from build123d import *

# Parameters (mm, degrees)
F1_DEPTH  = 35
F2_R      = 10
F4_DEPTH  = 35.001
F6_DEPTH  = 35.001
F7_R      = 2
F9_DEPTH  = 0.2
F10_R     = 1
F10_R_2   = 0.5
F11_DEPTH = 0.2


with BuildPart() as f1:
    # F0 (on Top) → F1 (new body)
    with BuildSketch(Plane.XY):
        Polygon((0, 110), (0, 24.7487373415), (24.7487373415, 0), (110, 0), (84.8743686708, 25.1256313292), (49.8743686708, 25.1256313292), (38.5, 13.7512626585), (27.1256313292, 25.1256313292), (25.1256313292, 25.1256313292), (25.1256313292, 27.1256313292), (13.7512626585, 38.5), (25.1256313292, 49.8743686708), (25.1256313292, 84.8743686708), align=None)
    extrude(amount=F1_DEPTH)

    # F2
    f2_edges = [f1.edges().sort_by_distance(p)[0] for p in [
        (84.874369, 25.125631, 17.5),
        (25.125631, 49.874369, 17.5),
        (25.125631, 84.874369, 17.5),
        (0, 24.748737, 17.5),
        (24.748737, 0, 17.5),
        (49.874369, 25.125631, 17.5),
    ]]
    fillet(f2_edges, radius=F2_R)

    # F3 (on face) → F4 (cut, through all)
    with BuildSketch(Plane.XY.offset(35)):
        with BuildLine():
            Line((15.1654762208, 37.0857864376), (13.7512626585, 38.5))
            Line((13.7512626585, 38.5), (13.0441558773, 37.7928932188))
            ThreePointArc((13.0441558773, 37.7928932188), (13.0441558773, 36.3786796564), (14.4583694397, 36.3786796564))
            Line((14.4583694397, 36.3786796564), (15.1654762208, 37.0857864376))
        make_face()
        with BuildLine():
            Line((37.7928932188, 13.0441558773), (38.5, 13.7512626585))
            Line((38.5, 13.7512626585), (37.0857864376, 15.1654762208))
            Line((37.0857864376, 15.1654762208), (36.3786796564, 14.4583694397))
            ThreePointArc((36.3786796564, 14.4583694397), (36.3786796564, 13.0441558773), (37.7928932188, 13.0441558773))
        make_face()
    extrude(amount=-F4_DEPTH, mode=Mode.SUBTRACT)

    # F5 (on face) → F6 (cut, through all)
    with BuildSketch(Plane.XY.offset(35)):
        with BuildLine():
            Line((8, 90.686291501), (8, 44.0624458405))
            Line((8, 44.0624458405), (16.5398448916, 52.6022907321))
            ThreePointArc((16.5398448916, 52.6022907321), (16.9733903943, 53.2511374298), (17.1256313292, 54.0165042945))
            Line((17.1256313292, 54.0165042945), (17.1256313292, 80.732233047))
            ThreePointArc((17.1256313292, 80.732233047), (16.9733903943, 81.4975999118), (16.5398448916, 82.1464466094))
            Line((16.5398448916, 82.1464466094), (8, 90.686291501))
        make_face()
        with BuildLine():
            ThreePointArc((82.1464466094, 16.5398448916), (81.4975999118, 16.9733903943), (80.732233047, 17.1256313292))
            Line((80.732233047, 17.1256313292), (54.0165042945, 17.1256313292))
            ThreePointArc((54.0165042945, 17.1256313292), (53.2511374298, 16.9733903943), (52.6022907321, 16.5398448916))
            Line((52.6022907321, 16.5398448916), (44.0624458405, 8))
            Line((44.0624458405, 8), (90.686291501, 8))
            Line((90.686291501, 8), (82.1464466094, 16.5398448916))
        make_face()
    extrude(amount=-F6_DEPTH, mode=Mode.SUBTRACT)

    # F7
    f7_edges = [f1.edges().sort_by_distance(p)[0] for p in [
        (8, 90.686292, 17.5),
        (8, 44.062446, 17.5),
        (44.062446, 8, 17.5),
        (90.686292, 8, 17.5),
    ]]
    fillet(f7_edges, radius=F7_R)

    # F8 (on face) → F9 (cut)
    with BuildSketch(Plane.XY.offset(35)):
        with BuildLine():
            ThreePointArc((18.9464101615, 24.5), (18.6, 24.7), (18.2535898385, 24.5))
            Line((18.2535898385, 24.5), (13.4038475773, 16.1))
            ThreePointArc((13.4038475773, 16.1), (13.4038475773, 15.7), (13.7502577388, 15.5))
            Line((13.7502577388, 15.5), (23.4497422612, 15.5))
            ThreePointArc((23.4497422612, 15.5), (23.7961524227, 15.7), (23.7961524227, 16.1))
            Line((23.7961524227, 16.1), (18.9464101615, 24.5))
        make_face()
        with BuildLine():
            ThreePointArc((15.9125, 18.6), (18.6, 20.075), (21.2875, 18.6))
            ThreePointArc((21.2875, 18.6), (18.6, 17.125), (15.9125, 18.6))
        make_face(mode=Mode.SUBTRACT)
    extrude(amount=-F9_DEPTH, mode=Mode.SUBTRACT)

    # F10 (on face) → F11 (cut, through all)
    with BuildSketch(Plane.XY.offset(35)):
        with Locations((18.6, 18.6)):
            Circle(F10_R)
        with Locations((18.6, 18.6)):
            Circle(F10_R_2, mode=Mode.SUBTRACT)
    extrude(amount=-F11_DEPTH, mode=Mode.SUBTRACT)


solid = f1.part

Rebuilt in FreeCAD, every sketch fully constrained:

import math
import FreeCAD as App
import Part
import Sketcher

V = App.Vector
Q = App.Units.Quantity


def edges_at(feature, points):
    """Names of the edges that pass closest to the given points."""
    edges = feature.Shape.Edges
    near = lambda p: min(range(len(edges)), key=lambda i: edges[i].distToShape(Part.Vertex(*p))[0])
    return sorted({f"Edge{near(p) + 1}" for p in points})


def add_polygon(sketch, points):
    """Adds a closed chain of lines whose ends are joined by coincident constraints."""
    first, n = sketch.GeometryCount, len(points)
    for a, b in zip(points, points[1:] + points[:1]):
        sketch.addGeometry(Part.LineSegment(App.Vector(*a, 0), App.Vector(*b, 0)), False)
    for i in range(n):
        sketch.addConstraint(Sketcher.Constraint("Coincident", first + i, 2, first + (i + 1) % n, 1))

doc = App.newDocument("Part")
body = doc.addObject("PartDesign::Body", "Body")

# Sketch on XY plane
sketch1 = doc.addObject("Sketcher::SketchObject", "Sketch")
body.addObject(sketch1)
sketch1.AttachmentSupport = (doc.XY_Plane, [""])
sketch1.MapMode = "FlatFace"
add_polygon(sketch1, [(0, 110), (0, 24.7), (24.7, 0), (110, 0), (84.9, 25.1), (49.9, 25.1), (38.5, 13.8), (27.1, 25.1), (25.1, 25.1), (25.1, 27.1), (13.8, 38.5), (25.1, 49.9), (25.1, 84.9)])  # lines 0-12
sketch1.addConstraint([
    Sketcher.Constraint("Vertical", 0),
    Sketcher.Constraint("Horizontal", 2),
    Sketcher.Constraint("Horizontal", 4),
    Sketcher.Constraint("Horizontal", 7),
    Sketcher.Constraint("Vertical", 8),
    Sketcher.Constraint("Vertical", 11),
    Sketcher.Constraint("PointOnObject", 0, 2, -2),
    Sketcher.Constraint("PointOnObject", 1, 2, -1),
    Sketcher.Constraint("Parallel", 1, 3),
    Sketcher.Constraint("Perpendicular", 3, 5),
    Sketcher.Constraint("Perpendicular", 5, 6),
    Sketcher.Constraint("Parallel", 6, 9),
    Sketcher.Constraint("Perpendicular", 9, 10),
    Sketcher.Constraint("Perpendicular", 10, 12),
    Sketcher.Constraint("Horizontal", 4, 2, 6, 2),
    Sketcher.Constraint("Vertical", 8, 2, 10, 2),
    Sketcher.Constraint("Equal", 2, 0),
    Sketcher.Constraint("Equal", 7, 8),
    Sketcher.Constraint("Equal", 4, 11),
    Sketcher.Constraint("Equal", 5, 6),
    Sketcher.Constraint("Equal", 3, 12),
    Sketcher.Constraint("DistanceX", 4, 2, 4, 1, Q("35 mm")),
    Sketcher.Constraint("DistanceX", 7, 2, 7, 1, Q("2 mm")),
    Sketcher.Constraint("Distance", 1, Q("35 mm")),
    Sketcher.Constraint("DistanceX", -1, 1, 2, 2, Q("110 mm")),
    Sketcher.Constraint("Distance", 3, Q("35.533009 mm")),
])
pad1 = doc.addObject("PartDesign::Pad", "Pad")
body.addObject(pad1)
pad1.Profile = sketch1
pad1.Length = 35
doc.recompute()

fillet = doc.addObject("PartDesign::Fillet", "Fillet")
body.addObject(fillet)
fillet.Base = (pad1, edges_at(pad1, [
    (84.874, 25.126, 17.5),
    (25.126, 49.874, 17.5),
    (25.126, 84.874, 17.5),
    (0, 24.749, 17.5),
    (24.749, 0, 17.5),
    (49.874, 25.126, 17.5),
]))
fillet.Radius = 10

# Sketch on XY plane
sketch2 = doc.addObject("Sketcher::SketchObject", "Sketch001")
body.addObject(sketch2)
sketch2.AttachmentSupport = (doc.XY_Plane, [""])
sketch2.MapMode = "FlatFace"
sketch2.AttachmentOffset = App.Placement(V(0, 0, 35), App.Rotation())
sketch2.addGeometry([
    Part.LineSegment(V(15.2, 37.1, 0), V(13.8, 38.5, 0)),  # 0
    Part.LineSegment(V(13.8, 38.5, 0), V(13, 37.8, 0)),  # 1
    Part.ArcOfCircle(Part.Circle(V(13.8, 37.1, 0), V(0, 0, 1), 1), math.radians(135), math.radians(315)),  # 2
    Part.LineSegment(V(14.5, 36.4, 0), V(15.2, 37.1, 0)),  # 3
    Part.LineSegment(V(37.8, 13, 0), V(38.5, 13.8, 0)),  # 4
    Part.LineSegment(V(38.5, 13.8, 0), V(37.1, 15.2, 0)),  # 5
    Part.LineSegment(V(37.1, 15.2, 0), V(36.4, 14.5, 0)),  # 6
    Part.ArcOfCircle(Part.Circle(V(37.1, 13.8, 0), V(0, 0, 1), 1), math.radians(135), math.radians(315)),  # 7
], False)
sketch2.addConstraint([
    Sketcher.Constraint("Coincident", 0, 2, 1, 1),
    Sketcher.Constraint("Tangent", 1, 2, 2, 1),
    Sketcher.Constraint("Tangent", 2, 2, 3, 1),
    Sketcher.Constraint("Coincident", 3, 2, 0, 1),
    Sketcher.Constraint("Coincident", 4, 2, 5, 1),
    Sketcher.Constraint("Coincident", 5, 2, 6, 1),
    Sketcher.Constraint("Tangent", 6, 2, 7, 1),
    Sketcher.Constraint("Tangent", 7, 2, 4, 1),
    Sketcher.Constraint("Equal", 2, 7),
    Sketcher.Constraint("Perpendicular", 0, 1),
    Sketcher.Constraint("Parallel", 1, 3),
    Sketcher.Constraint("Parallel", 3, 4),
    Sketcher.Constraint("Perpendicular", 4, 5),
    Sketcher.Constraint("Perpendicular", 5, 6),
    Sketcher.Constraint("Horizontal", 2, 3, 3, 2),
    Sketcher.Constraint("Horizontal", 7, 3, 4, 2),
    Sketcher.Constraint("Vertical", 2, 3, 0, 2),
    Sketcher.Constraint("Radius", 2, Q("1 mm")),
    Sketcher.Constraint("DistanceY", -1, 1, 0, 2, Q("38.5 mm")),
    Sketcher.Constraint("DistanceX", -1, 1, 4, 2, Q("38.5 mm")),
    Sketcher.Constraint("DistanceX", -1, 1, 2, 2, Q("14.458369 mm")),
    Sketcher.Constraint("DistanceY", -1, 1, 6, 2, Q("14.458369 mm")),
])
pocket1 = doc.addObject("PartDesign::Pocket", "Pocket")
body.addObject(pocket1)
pocket1.Profile = sketch2
pocket1.Type = "ThroughAll"

# Sketch on XY plane
sketch3 = doc.addObject("Sketcher::SketchObject", "Sketch002")
body.addObject(sketch3)
sketch3.AttachmentSupport = (doc.XY_Plane, [""])
sketch3.MapMode = "FlatFace"
sketch3.AttachmentOffset = App.Placement(V(0, 0, 35), App.Rotation())
sketch3.addGeometry([
    Part.LineSegment(V(8, 90.7, 0), V(8, 44.1, 0)),  # 0
    Part.LineSegment(V(8, 44.1, 0), V(16.5, 52.6, 0)),  # 1
    Part.ArcOfCircle(Part.Circle(V(15.1, 54, 0), V(0, 0, 1), 2), math.radians(-45), math.radians(0)),  # 2
    Part.LineSegment(V(17.1, 54, 0), V(17.1, 80.7, 0)),  # 3
    Part.ArcOfCircle(Part.Circle(V(15.1, 80.7, 0), V(0, 0, 1), 2), math.radians(0), math.radians(45)),  # 4
    Part.LineSegment(V(16.5, 82.1, 0), V(8, 90.7, 0)),  # 5
    Part.ArcOfCircle(Part.Circle(V(80.7, 15.1, 0), V(0, 0, 1), 2), math.radians(45), math.radians(90)),  # 6
    Part.LineSegment(V(80.7, 17.1, 0), V(54, 17.1, 0)),  # 7
    Part.ArcOfCircle(Part.Circle(V(54, 15.1, 0), V(0, 0, 1), 2), math.radians(90), math.radians(135)),  # 8
    Part.LineSegment(V(52.6, 16.5, 0), V(44.1, 8, 0)),  # 9
    Part.LineSegment(V(44.1, 8, 0), V(90.7, 8, 0)),  # 10
    Part.LineSegment(V(90.7, 8, 0), V(82.1, 16.5, 0)),  # 11
], False)
sketch3.addConstraint([
    Sketcher.Constraint("Coincident", 0, 2, 1, 1),
    Sketcher.Constraint("Tangent", 1, 2, 2, 1),
    Sketcher.Constraint("Tangent", 2, 2, 3, 1),
    Sketcher.Constraint("Tangent", 3, 2, 4, 1),
    Sketcher.Constraint("Tangent", 4, 2, 5, 1),
    Sketcher.Constraint("Coincident", 5, 2, 0, 1),
    Sketcher.Constraint("Tangent", 6, 2, 7, 1),
    Sketcher.Constraint("Tangent", 7, 2, 8, 1),
    Sketcher.Constraint("Tangent", 8, 2, 9, 1),
    Sketcher.Constraint("Coincident", 9, 2, 10, 1),
    Sketcher.Constraint("Coincident", 10, 2, 11, 1),
    Sketcher.Constraint("Tangent", 11, 2, 6, 1),
    Sketcher.Constraint("Vertical", 0),
    Sketcher.Constraint("Vertical", 3),
    Sketcher.Constraint("Horizontal", 7),
    Sketcher.Constraint("Horizontal", 10),
    Sketcher.Constraint("Equal", 2, 4),
    Sketcher.Constraint("Equal", 4, 6),
    Sketcher.Constraint("Equal", 6, 8),
    Sketcher.Constraint("Perpendicular", 1, 5),
    Sketcher.Constraint("Perpendicular", 5, 9),
    Sketcher.Constraint("Perpendicular", 9, 11),
    Sketcher.Constraint("Horizontal", 8, 2, 11, 2),
    Sketcher.Constraint("Equal", 10, 0),
    Sketcher.Constraint("Equal", 7, 3),
    Sketcher.Constraint("Radius", 2, Q("2 mm")),
    Sketcher.Constraint("DistanceX", -1, 1, 0, 2, Q("8 mm")),
    Sketcher.Constraint("DistanceY", -1, 1, 9, 2, Q("8 mm")),
    Sketcher.Constraint("DistanceX", 8, 2, 10, 2, Q("38.084001 mm")),
    Sketcher.Constraint("DistanceX", 7, 2, 7, 1, Q("26.715729 mm")),
    Sketcher.Constraint("DistanceX", 2, 3, 6, 3, Q("65.606602 mm")),
    Sketcher.Constraint("DistanceY", 6, 3, 4, 3, Q("65.606602 mm")),
])
pocket2 = doc.addObject("PartDesign::Pocket", "Pocket001")
body.addObject(pocket2)
pocket2.Profile = sketch3
pocket2.Type = "ThroughAll"
doc.recompute()

fillet2 = doc.addObject("PartDesign::Fillet", "Fillet001")
body.addObject(fillet2)
fillet2.Base = (pocket2, edges_at(pocket2, [
    (8, 90.686, 17.5),
    (8, 44.062, 17.5),
    (44.062, 8, 17.5),
    (90.686, 8, 17.5),
]))
fillet2.Radius = 2

# Sketch on XY plane
sketch4 = doc.addObject("Sketcher::SketchObject", "Sketch003")
body.addObject(sketch4)
sketch4.AttachmentSupport = (doc.XY_Plane, [""])
sketch4.MapMode = "FlatFace"
sketch4.AttachmentOffset = App.Placement(V(0, 0, 35), App.Rotation())
sketch4.addGeometry([
    Part.ArcOfCircle(Part.Circle(V(18.6, 24.3, 0), V(0, 0, 1), 0.4), math.radians(30), math.radians(150)),  # 0
    Part.LineSegment(V(18.25, 24.5, 0), V(13.4, 16.1, 0)),  # 1
    Part.ArcOfCircle(Part.Circle(V(13.75, 15.9, 0), V(0, 0, 1), 0.4), math.radians(150), math.radians(270)),  # 2
    Part.LineSegment(V(13.75, 15.5, 0), V(23.45, 15.5, 0)),  # 3
    Part.ArcOfCircle(Part.Circle(V(23.45, 15.9, 0), V(0, 0, 1), 0.4), math.radians(-90), math.radians(30)),  # 4
    Part.LineSegment(V(23.8, 16.1, 0), V(18.95, 24.5, 0)),  # 5
    Part.ArcOfCircle(Part.Circle(V(18.6, 20.31, 0), V(0, 0, 1), 3.19), math.radians(-148), math.radians(-32)),  # 6
    Part.ArcOfCircle(Part.Circle(V(18.6, 16.89, 0), V(0, 0, 1), 3.19), math.radians(32), math.radians(148)),  # 7
], False)
sketch4.addConstraint([
    Sketcher.Constraint("Tangent", 0, 2, 1, 1),
    Sketcher.Constraint("Tangent", 1, 2, 2, 1),
    Sketcher.Constraint("Tangent", 2, 2, 3, 1),
    Sketcher.Constraint("Tangent", 3, 2, 4, 1),
    Sketcher.Constraint("Tangent", 4, 2, 5, 1),
    Sketcher.Constraint("Tangent", 5, 2, 0, 1),
    Sketcher.Constraint("Coincident", 6, 1, 7, 2),
    Sketcher.Constraint("Coincident", 7, 1, 6, 2),
    Sketcher.Constraint("Horizontal", 3),
    Sketcher.Constraint("Equal", 0, 2),
    Sketcher.Constraint("Equal", 2, 4),
    Sketcher.Constraint("Equal", 6, 7),
    Sketcher.Constraint("Horizontal", 1, 2, 4, 2),
    Sketcher.Constraint("Horizontal", 6, 1, 7, 1),
    Sketcher.Constraint("Vertical", 0, 3, 6, 3),
    Sketcher.Constraint("Radius", 0, Q("0.4 mm")),
    Sketcher.Constraint("Angle", 1, Q("-120 deg")),
    Sketcher.Constraint("DistanceX", -1, 1, 0, 3, Q("18.6 mm")),
    Sketcher.Constraint("DistanceY", -1, 1, 0, 3, Q("24.3 mm")),
    Sketcher.Constraint("DistanceY", -1, 1, 2, 3, Q("15.9 mm")),
    Sketcher.Constraint("DistanceY", -1, 1, 6, 1, Q("18.6 mm")),
    Sketcher.Constraint("Radius", 6, Q("3.185858 mm")),
    Sketcher.Constraint("DistanceX", -1, 1, 6, 1, Q("15.9125 mm")),
])
pocket3 = doc.addObject("PartDesign::Pocket", "Pocket002")
body.addObject(pocket3)
pocket3.Profile = sketch4
pocket3.Length = 0.2

# Sketch on XY plane
sketch5 = doc.addObject("Sketcher::SketchObject", "Sketch004")
body.addObject(sketch5)
sketch5.AttachmentSupport = (doc.XY_Plane, [""])
sketch5.MapMode = "FlatFace"
sketch5.AttachmentOffset = App.Placement(V(0, 0, 35), App.Rotation())
sketch5.addGeometry([
    Part.Circle(V(18.6, 18.6, 0), V(0, 0, 1), 1),
    Part.Circle(V(18.6, 18.6, 0), V(0, 0, 1), 0.5),
], False)
sketch5.addConstraint([
    Sketcher.Constraint("Coincident", 1, 3, 0, 3),
    Sketcher.Constraint("Diameter", 0, Q("2 mm")),
    Sketcher.Constraint("Diameter", 1, Q("1 mm")),
    Sketcher.Constraint("DistanceX", -1, 1, 0, 3, Q("18.6 mm")),
    Sketcher.Constraint("DistanceY", -1, 1, 0, 3, Q("18.6 mm")),
])
pocket4 = doc.addObject("PartDesign::Pocket", "Pocket003")
body.addObject(pocket4)
pocket4.Profile = sketch5
pocket4.Length = 0.2

doc.recompute()
